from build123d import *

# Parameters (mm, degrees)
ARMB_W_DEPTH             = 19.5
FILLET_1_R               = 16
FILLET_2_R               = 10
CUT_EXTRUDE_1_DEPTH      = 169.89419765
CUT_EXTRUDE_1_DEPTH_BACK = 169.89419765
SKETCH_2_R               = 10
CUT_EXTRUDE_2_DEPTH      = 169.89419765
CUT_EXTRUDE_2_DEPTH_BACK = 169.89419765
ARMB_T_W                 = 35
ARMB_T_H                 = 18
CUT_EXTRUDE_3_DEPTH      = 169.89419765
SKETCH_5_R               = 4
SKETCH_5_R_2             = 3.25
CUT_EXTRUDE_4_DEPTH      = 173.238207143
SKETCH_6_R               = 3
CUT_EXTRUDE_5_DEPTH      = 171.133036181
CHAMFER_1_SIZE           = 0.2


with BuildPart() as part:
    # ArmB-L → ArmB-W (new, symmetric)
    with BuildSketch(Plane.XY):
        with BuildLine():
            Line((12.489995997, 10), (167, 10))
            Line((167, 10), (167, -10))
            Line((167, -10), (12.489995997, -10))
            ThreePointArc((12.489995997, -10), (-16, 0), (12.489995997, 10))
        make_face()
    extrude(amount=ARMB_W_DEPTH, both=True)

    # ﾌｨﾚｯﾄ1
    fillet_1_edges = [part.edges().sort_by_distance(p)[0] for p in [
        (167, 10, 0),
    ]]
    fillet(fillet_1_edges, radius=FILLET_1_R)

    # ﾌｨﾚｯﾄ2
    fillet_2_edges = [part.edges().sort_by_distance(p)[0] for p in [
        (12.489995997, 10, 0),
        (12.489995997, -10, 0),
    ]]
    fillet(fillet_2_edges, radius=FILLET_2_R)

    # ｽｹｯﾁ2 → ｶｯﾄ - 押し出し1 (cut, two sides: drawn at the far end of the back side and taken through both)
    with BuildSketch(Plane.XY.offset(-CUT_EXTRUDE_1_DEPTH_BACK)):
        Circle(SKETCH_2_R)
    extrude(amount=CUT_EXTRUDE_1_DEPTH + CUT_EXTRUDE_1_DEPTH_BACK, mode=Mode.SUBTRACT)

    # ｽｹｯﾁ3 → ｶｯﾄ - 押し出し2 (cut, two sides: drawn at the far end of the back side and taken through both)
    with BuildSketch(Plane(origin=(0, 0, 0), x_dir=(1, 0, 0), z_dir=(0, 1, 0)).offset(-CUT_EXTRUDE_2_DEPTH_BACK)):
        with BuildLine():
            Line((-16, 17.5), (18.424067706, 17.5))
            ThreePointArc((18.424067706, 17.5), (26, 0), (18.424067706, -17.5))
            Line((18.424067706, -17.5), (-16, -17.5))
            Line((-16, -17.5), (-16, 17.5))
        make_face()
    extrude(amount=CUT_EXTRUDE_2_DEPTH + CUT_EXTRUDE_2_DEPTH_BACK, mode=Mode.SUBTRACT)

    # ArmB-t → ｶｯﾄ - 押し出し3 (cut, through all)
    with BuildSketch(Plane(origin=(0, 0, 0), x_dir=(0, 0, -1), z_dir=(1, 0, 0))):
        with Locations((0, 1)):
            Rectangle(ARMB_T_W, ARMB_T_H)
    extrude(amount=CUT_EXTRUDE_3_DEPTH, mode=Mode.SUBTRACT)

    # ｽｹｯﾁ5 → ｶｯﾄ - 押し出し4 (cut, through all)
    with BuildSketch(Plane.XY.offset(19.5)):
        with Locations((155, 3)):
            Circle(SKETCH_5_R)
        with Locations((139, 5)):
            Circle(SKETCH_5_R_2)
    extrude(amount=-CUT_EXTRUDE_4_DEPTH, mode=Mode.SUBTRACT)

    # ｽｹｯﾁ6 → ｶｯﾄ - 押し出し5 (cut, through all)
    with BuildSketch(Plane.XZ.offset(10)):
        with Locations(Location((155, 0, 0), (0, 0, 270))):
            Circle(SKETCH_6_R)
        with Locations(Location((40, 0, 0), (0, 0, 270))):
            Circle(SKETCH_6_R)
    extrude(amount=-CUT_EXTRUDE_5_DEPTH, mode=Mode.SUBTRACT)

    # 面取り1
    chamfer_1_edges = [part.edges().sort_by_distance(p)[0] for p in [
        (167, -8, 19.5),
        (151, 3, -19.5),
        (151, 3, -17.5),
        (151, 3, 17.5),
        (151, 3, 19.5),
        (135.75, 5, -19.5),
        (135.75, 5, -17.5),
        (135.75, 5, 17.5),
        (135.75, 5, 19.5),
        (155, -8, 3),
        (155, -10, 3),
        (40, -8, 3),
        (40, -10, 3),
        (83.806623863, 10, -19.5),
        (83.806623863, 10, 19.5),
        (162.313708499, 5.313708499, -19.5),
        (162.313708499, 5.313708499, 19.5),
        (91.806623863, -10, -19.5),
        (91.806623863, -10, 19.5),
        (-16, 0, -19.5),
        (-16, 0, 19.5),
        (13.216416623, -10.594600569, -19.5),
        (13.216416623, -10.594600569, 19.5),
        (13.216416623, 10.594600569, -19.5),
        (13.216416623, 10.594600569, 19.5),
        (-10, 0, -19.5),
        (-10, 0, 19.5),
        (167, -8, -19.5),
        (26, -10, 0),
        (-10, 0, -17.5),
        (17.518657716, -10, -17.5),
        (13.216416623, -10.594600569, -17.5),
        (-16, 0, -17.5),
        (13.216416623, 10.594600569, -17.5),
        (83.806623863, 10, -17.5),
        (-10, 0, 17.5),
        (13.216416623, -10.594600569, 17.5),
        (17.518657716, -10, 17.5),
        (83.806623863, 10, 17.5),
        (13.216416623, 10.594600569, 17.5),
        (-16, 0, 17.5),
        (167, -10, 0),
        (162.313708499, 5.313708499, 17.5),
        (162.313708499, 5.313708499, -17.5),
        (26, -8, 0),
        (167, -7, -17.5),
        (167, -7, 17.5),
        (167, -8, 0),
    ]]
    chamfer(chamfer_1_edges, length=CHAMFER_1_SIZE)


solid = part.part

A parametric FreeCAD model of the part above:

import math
import FreeCAD as App
import Part
import Sketcher
from FreeCAD import Vector
Q = App.Units.Quantity


def edges_at(feature, points):
    """Names of the edges that pass closest to the given points."""
    edges = feature.Shape.Edges
    near = lambda p: min(range(len(edges)), key=lambda i: edges[i].distToShape(Part.Vertex(*p))[0])
    return sorted({f"Edge{near(p) + 1}" for p in points})

doc = App.newDocument("Part")
body = doc.addObject("PartDesign::Body", "Body")

# Sketch on XY plane
sketch1 = doc.addObject("Sketcher::SketchObject", "Sketch")
body.addObject(sketch1)
sketch1.AttachmentSupport = (doc.XY_Plane, [""])
sketch1.MapMode = "FlatFace"
sketch1.addGeometry([
    Part.LineSegment(Vector(167, 10, 0), Vector(12, 10, 0)),
    Part.ArcOfCircle(Part.Circle(Vector(0, 0, 0), Vector(0, 0, 1), 16), math.radians(39), math.radians(321)),
    Part.LineSegment(Vector(12, -10, 0), Vector(167, -10, 0)),
    Part.LineSegment(Vector(167, -10, 0), Vector(167, 10, 0)),
], False)
sketch1.addConstraint([
    Sketcher.Constraint("Coincident", 0, 2, 1, 1),
    Sketcher.Constraint("Coincident", 1, 2, 2, 1),
    Sketcher.Constraint("Coincident", 2, 2, 3, 1),
    Sketcher.Constraint("Coincident", 3, 2, 0, 1),
    Sketcher.Constraint("Horizontal", 0),
    Sketcher.Constraint("Horizontal", 2),
    Sketcher.Constraint("Vertical", 3),
    Sketcher.Constraint("Coincident", 1, 3, -1, 1),
    Sketcher.Constraint("Vertical", 0, 2, 1, 2),
    Sketcher.Constraint("Radius", 1, Q("16 mm")),
    Sketcher.Constraint("DistanceY", 3, 1, 3, 2, Q("20 mm")),
    Sketcher.Constraint("DistanceX", -1, 1, 2, 2, Q("167 mm")),
])
pad1 = doc.addObject("PartDesign::Pad", "Pad")
body.addObject(pad1)
pad1.Profile = sketch1
pad1.Length = 39
pad1.Midplane = True
doc.recompute()

fillet = doc.addObject("PartDesign::Fillet", "Fillet")
body.addObject(fillet)
fillet.Base = (pad1, edges_at(pad1, [(167, 10, 0)]))
fillet.Radius = 16
doc.recompute()

fillet2 = doc.addObject("PartDesign::Fillet", "Fillet001")
body.addObject(fillet2)
fillet2.Base = (fillet, edges_at(fillet, [(12.49, 10, 0), (12.49, -10, 0)]))
fillet2.Radius = 10

# Sketch on XY plane
sketch2 = doc.addObject("Sketcher::SketchObject", "Sketch001")
body.addObject(sketch2)
sketch2.AttachmentSupport = (doc.XY_Plane, [""])
sketch2.MapMode = "FlatFace"
sketch2.addGeometry(Part.Circle(Vector(0, 0, 0), Vector(0, 0, 1), 10), False)
sketch2.addConstraint([
    Sketcher.Constraint("Coincident", 0, 3, -1, 1),
    Sketcher.Constraint("Diameter", 0, Q("20 mm")),
])
pocket1 = doc.addObject("PartDesign::Pocket", "Pocket")
body.addObject(pocket1)
pocket1.Profile = sketch2
pocket1.Type = "ThroughAll"
pocket1.Midplane = True

# Sketch on XZ plane
sketch3 = doc.addObject("Sketcher::SketchObject", "Sketch002")
body.addObject(sketch3)
sketch3.AttachmentSupport = (doc.XZ_Plane, [""])
sketch3.MapMode = "FlatFace"
sketch3.addGeometry([
    Part.LineSegment(Vector(18, -18, 0), Vector(-16, -18, 0)),
    Part.LineSegment(Vector(-16, -18, 0), Vector(-16, 18, 0)),
    Part.LineSegment(Vector(-16, 18, 0), Vector(18, 18, 0)),
    Part.ArcOfCircle(Part.Circle(Vector(2, 0, 0), Vector(0, 0, 1), 24), math.radians(-47), math.radians(47)),
], False)
sketch3.addConstraint([
    Sketcher.Constraint("Coincident", 0, 2, 1, 1),
    Sketcher.Constraint("Coincident", 1, 2, 2, 1),
    Sketcher.Constraint("Coincident", 2, 2, 3, 2),
    Sketcher.Constraint("Coincident", 3, 1, 0, 1),
    Sketcher.Constraint("Horizontal", 0),
    Sketcher.Constraint("Vertical", 1),
    Sketcher.Constraint("Horizontal", 2),
    Sketcher.Constraint("Symmetric", 2, 2, 3, 1, -1),
    Sketcher.Constraint("Radius", 3, Q("24 mm")),
    Sketcher.Constraint("DistanceY", 1, 1, 1, 2, Q("35 mm")),
    Sketcher.Constraint("DistanceX", -1, 1, 3, 3, Q("2 mm")),
    Sketcher.Constraint("DistanceX", 0, 2, -1, 1, Q("16 mm")),
])
pocket2 = doc.addObject("PartDesign::Pocket", "Pocket001")
body.addObject(pocket2)
pocket2.Profile = sketch3
pocket2.Type = "ThroughAll"
pocket2.Midplane = True

# Sketch on YZ plane
sketch4 = doc.addObject("Sketcher::SketchObject", "Sketch003")
body.addObject(sketch4)
sketch4.AttachmentSupport = (doc.YZ_Plane, [""])
sketch4.MapMode = "FlatFace"
sketch4.addGeometry([
    Part.LineSegment(Vector(10, 18, 0), Vector(-8, 18, 0)),
    Part.LineSegment(Vector(-8, 18, 0), Vector(-8, -18, 0)),
    Part.LineSegment(Vector(-8, -18, 0), Vector(10, -18, 0)),
    Part.LineSegment(Vector(10, -18, 0), Vector(10, 18, 0)),
], False)
sketch4.addConstraint([
    Sketcher.Constraint("Coincident", 0, 2, 1, 1),
    Sketcher.Constraint("Coincident", 1, 2, 2, 1),
    Sketcher.Constraint("Coincident", 2, 2, 3, 1),
    Sketcher.Constraint("Coincident", 3, 2, 0, 1),
    Sketcher.Constraint("Horizontal", 0),
    Sketcher.Constraint("Vertical", 1),
    Sketcher.Constraint("Horizontal", 2),
    Sketcher.Constraint("Vertical", 3),
    Sketcher.Constraint("DistanceX", 0, 2, 0, 1, Q("18 mm")),
    Sketcher.Constraint("DistanceY", 1, 2, 1, 1, Q("35 mm")),
    Sketcher.Constraint("DistanceX", 0, 2, -1, 1, Q("8 mm")),
    Sketcher.Constraint("DistanceY", -1, 1, 0, 2, Q("17.5 mm")),
])
pocket3 = doc.addObject("PartDesign::Pocket", "Pocket002")
body.addObject(pocket3)
pocket3.Profile = sketch4
pocket3.Type = "ThroughAll"
pocket3.Reversed = True

# Sketch on XY plane
sketch5 = doc.addObject("Sketcher::SketchObject", "Sketch004")
body.addObject(sketch5)
sketch5.AttachmentSupport = (doc.XY_Plane, [""])
sketch5.MapMode = "FlatFace"
sketch5.AttachmentOffset = App.Placement(Vector(0, 0, 19.5), App.Rotation())
sketch5.addGeometry([
    Part.Circle(Vector(155, 3, 0), Vector(0, 0, 1), 4),
    Part.Circle(Vector(139, 5, 0), Vector(0, 0, 1), 3.2),
], False)
sketch5.addConstraint([
    Sketcher.Constraint("Diameter", 0, Q("8 mm")),
    Sketcher.Constraint("Diameter", 1, Q("6.5 mm")),
    Sketcher.Constraint("DistanceX", -1, 1, 0, 3, Q("155 mm")),
    Sketcher.Constraint("DistanceY", -1, 1, 0, 3, Q("3 mm")),
    Sketcher.Constraint("DistanceX", -1, 1, 1, 3, Q("139 mm")),
    Sketcher.Constraint("DistanceY", -1, 1, 1, 3, Q("5 mm")),
])
pocket4 = doc.addObject("PartDesign::Pocket", "Pocket003")
body.addObject(pocket4)
pocket4.Profile = sketch5
pocket4.Type = "ThroughAll"

# Sketch on XZ plane
sketch6 = doc.addObject("Sketcher::SketchObject", "Sketch005")
body.addObject(sketch6)
sketch6.AttachmentSupport = (doc.XZ_Plane, [""])
sketch6.MapMode = "FlatFace"
sketch6.AttachmentOffset = App.Placement(Vector(0, 0, 10), App.Rotation())
sketch6.addGeometry([
    Part.Circle(Vector(155, 0, 0), Vector(0, 0, 1), 3),
    Part.Circle(Vector(40, 0, 0), Vector(0, 0, 1), 3),
], False)
sketch6.addConstraint([
    Sketcher.Constraint("Equal", 0, 1),
    Sketcher.Constraint("PointOnObject", 0, 3, -1),
    Sketcher.Constraint("PointOnObject", 1, 3, -1),
    Sketcher.Constraint("Diameter", 0, Q("6 mm")),
    Sketcher.Constraint("DistanceX", -1, 1, 0, 3, Q("155 mm")),
    Sketcher.Constraint("DistanceX", -1, 1, 1, 3, Q("40 mm")),
])
pocket5 = doc.addObject("PartDesign::Pocket", "Pocket004")
body.addObject(pocket5)
pocket5.Profile = sketch6
pocket5.Type = "ThroughAll"
doc.recompute()

chamfer = doc.addObject("PartDesign::Chamfer", "Chamfer")
body.addObject(chamfer)
chamfer.Base = (pocket5, edges_at(pocket5, [
    (167, -8, 19.5),
    (151, 3, -19.5),
    (151, 3, -17.5),
    (151, 3, 17.5),
    (151, 3, 19.5),
    (135.75, 5, -19.5),
    (135.75, 5, -17.5),
    (135.75, 5, 17.5),
    (135.75, 5, 19.5),
    (155, -8, 3),
    (155, -10, 3),
    (40, -8, 3),
    (40, -10, 3),
    (83.807, 10, -19.5),
    (83.807, 10, 19.5),
    (162.314, 5.314, -19.5),
    (162.314, 5.314, 19.5),
    (91.807, -10, -19.5),
    (91.807, -10, 19.5),
    (-16, 0, -19.5),
    (-16, 0, 19.5),
    (13.216, -10.595, -19.5),
    (13.216, -10.595, 19.5),
    (13.216, 10.595, -19.5),
    (13.216, 10.595, 19.5),
    (-10, 0, -19.5),
    (-10, 0, 19.5),
    (167, -8, -19.5),
    (26, -10, 0),
    (-10, 0, -17.5),
    (17.519, -10, -17.5),
    (13.216, -10.595, -17.5),
    (-16, 0, -17.5),
    (13.216, 10.595, -17.5),
    (83.807, 10, -17.5),
    (-10, 0, 17.5),
    (13.216, -10.595, 17.5),
    (17.519, -10, 17.5),
    (83.807, 10, 17.5),
    (13.216, 10.595, 17.5),
    (-16, 0, 17.5),
    (167, -10, 0),
    (162.314, 5.314, 17.5),
    (162.314, 5.314, -17.5),
    (26, -8, 0),
    (167, -7, -17.5),
    (167, -7, 17.5),
    (167, -8, 0),
]))
chamfer.Size = 0.2

doc.recompute()
